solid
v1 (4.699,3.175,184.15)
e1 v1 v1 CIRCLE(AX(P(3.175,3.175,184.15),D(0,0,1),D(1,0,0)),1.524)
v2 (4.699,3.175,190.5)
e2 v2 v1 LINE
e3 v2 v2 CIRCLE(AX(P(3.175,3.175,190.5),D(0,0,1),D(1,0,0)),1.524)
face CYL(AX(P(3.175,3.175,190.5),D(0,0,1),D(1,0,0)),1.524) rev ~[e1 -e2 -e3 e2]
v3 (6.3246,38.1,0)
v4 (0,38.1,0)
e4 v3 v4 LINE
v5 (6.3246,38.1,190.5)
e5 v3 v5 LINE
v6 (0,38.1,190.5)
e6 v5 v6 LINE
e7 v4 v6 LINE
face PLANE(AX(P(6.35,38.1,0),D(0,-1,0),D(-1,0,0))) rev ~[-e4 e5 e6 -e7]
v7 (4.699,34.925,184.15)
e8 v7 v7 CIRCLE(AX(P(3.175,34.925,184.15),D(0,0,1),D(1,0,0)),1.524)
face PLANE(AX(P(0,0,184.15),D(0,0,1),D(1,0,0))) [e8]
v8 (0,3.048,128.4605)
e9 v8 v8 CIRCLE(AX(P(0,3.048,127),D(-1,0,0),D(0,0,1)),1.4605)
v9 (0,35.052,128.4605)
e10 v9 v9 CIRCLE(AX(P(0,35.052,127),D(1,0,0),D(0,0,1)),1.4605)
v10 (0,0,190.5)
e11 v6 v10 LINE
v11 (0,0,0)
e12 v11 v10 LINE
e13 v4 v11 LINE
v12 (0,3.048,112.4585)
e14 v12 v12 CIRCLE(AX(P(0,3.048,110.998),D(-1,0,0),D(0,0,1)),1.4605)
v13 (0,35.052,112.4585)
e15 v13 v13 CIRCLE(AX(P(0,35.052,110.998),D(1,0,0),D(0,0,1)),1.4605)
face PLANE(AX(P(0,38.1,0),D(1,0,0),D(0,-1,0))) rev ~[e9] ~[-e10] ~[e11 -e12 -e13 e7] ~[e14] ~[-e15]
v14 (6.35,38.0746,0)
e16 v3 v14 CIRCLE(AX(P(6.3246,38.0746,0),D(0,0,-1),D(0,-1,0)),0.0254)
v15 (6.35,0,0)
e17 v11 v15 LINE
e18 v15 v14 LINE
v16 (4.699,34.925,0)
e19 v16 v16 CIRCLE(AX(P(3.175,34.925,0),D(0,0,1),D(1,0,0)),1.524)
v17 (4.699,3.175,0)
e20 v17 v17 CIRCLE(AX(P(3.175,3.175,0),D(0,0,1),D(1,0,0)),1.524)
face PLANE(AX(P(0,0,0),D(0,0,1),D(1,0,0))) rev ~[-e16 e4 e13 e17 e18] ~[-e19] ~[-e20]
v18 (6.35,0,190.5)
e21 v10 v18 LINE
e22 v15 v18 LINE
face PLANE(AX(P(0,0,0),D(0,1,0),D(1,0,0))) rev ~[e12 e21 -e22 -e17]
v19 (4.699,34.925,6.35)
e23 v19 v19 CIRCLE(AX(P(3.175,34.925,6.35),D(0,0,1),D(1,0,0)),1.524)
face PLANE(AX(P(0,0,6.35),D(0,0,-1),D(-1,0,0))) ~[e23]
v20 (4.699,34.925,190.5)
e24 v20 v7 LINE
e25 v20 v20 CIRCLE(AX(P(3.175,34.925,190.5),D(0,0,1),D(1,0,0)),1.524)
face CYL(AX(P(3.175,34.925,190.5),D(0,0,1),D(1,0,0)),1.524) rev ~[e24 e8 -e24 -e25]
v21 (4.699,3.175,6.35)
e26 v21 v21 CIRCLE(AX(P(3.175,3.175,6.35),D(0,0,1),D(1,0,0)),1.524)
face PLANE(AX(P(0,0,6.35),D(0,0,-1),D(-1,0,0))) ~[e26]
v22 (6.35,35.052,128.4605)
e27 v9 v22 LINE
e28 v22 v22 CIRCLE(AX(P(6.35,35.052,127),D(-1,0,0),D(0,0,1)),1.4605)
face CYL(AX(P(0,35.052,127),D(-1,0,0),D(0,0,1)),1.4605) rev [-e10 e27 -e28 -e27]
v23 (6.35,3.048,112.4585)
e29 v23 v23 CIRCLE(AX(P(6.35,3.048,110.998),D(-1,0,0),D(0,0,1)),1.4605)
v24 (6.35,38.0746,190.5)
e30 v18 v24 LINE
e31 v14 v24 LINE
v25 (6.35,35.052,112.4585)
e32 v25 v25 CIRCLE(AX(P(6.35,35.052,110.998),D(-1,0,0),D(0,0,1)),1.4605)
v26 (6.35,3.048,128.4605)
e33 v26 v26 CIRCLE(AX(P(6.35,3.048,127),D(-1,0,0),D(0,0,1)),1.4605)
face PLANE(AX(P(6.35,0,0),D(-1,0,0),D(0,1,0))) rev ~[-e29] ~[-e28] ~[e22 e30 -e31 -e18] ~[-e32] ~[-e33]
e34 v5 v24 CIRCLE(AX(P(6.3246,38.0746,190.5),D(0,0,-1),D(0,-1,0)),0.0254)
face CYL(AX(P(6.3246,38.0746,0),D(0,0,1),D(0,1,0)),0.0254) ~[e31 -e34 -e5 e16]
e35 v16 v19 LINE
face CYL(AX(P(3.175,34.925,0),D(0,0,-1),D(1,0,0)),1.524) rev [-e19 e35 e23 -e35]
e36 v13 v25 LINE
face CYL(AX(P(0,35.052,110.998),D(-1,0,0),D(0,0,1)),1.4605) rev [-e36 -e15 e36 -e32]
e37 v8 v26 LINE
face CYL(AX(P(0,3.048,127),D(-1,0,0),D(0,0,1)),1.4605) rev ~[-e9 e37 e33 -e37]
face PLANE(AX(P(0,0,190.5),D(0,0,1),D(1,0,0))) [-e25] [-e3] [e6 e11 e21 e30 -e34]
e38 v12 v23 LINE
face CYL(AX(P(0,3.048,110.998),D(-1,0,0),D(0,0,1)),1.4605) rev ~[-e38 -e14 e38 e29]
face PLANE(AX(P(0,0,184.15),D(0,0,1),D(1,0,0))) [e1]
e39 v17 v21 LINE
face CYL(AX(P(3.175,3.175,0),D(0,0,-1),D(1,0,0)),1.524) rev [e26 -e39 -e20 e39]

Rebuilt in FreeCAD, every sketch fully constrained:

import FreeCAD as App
import Part
import Sketcher

V = App.Vector
Q = App.Units.Quantity


def edges_at(feature, points):
    """Names of the edges that pass closest to the given points."""
    edges = feature.Shape.Edges
    near = lambda p: min(range(len(edges)), key=lambda i: edges[i].distToShape(Part.Vertex(*p))[0])
    return sorted({f"Edge{near(p) + 1}" for p in points})


def add_polygon(sketch, points):
    """Adds a closed chain of lines whose ends are joined by coincident constraints."""
    first, n = sketch.GeometryCount, len(points)
    for a, b in zip(points, points[1:] + points[:1]):
        sketch.addGeometry(Part.LineSegment(App.Vector(*a, 0), App.Vector(*b, 0)), False)
    for i in range(n):
        sketch.addConstraint(Sketcher.Constraint("Coincident", first + i, 2, first + (i + 1) % n, 1))

doc = App.newDocument("Part")
body = doc.addObject("PartDesign::Body", "Body")

sketch1 = doc.addObject("Sketcher::SketchObject", "Sketch")
body.addObject(sketch1)
sketch1.AttachmentSupport = (doc.XY_Plane, [""])
sketch1.MapMode = "FlatFace"
add_polygon(sketch1, [(0, 38.1), (0, 0), (6.35, 0), (6.35, 38.1)])
sketch1.addConstraint([
    Sketcher.Constraint("Vertical", 0),
    Sketcher.Constraint("Horizontal", 1),
    Sketcher.Constraint("Vertical", 2),
    Sketcher.Constraint("Horizontal", 3),
    Sketcher.Constraint("Coincident", 0, 2, -1, 1),
    Sketcher.Constraint("DistanceY", 0, 2, 0, 1, Q("1.5 in")),
    Sketcher.Constraint("DistanceX", 1, 1, 1, 2, Q("0.25 in")),
])
pad1 = doc.addObject("PartDesign::Pad", "Pad")
body.addObject(pad1)
pad1.Profile = sketch1
pad1.Length = Q("7.5 in")

sketch2 = doc.addObject("Sketcher::SketchObject", "Sketch001")
body.addObject(sketch2)
sketch2.AttachmentSupport = (doc.XY_Plane, [""])
sketch2.MapMode = "FlatFace"
sketch2.AttachmentOffset = App.Placement(V(0, 0, 7.5 * 25.4), App.Rotation())
sketch2.addGeometry([
    Part.Circle(V(3.175, 3.175, 0), V(0, 0, 1), 1.524),
    Part.Circle(V(3.175, 34.925, 0), V(0, 0, 1), 1.524),
], False)
sketch2.addConstraint([
    Sketcher.Constraint("Equal", 0, 1),
    Sketcher.Constraint("Vertical", 0, 3, 1, 3),
    Sketcher.Constraint("Diameter", 0, Q("0.12 in")),
    Sketcher.Constraint("DistanceX", -1, 1, 0, 3, Q("0.125 in")),
    Sketcher.Constraint("DistanceY", -1, 1, 0, 3, Q("0.125 in")),
    Sketcher.Constraint("DistanceY", 0, 3, 1, 3, Q("1.25 in")),
])
pocket1 = doc.addObject("PartDesign::Pocket", "Pocket")
body.addObject(pocket1)
pocket1.Profile = sketch2
pocket1.Length = Q("0.25 in")
doc.recompute()

datumplane = doc.addObject("PartDesign::Plane", "DatumPlane")
body.addObject(datumplane)
datumplane.AttachmentSupport = (doc.XY_Plane, [""])
datumplane.MapMode = "FlatFace"
datumplane.AttachmentOffset = App.Placement(V(0, 0, 3.75 * 25.4), App.Rotation())
mirrored = doc.addObject("PartDesign::Mirrored", "Mirrored")
body.addObject(mirrored)
mirrored.Originals = [pocket1]
mirrored.MirrorPlane = (datumplane, [""])
body.Tip = mirrored

sketch3 = doc.addObject("Sketcher::SketchObject", "Sketch002")
body.addObject(sketch3)
sketch3.AttachmentSupport = (doc.YZ_Plane, [""])
sketch3.MapMode = "FlatFace"
sketch3.addGeometry([
    Part.Circle(V(3.048, 110.998, 0), V(0, 0, 1), 1.4605),
    Part.Circle(V(3.048, 127, 0), V(0, 0, 1), 1.4605),
], False)
sketch3.addConstraint([
    Sketcher.Constraint("Equal", 0, 1),
    Sketcher.Constraint("Vertical", 0, 3, 1, 3),
    Sketcher.Constraint("Diameter", 0, Q("0.115 in")),
    Sketcher.Constraint("DistanceX", -1, 1, 0, 3, Q("0.12 in")),
    Sketcher.Constraint("DistanceY", -1, 1, 0, 3, Q("4.37 in")),
    Sketcher.Constraint("DistanceY", 0, 3, 1, 3, Q("0.63 in")),
])
pocket2 = doc.addObject("PartDesign::Pocket", "Pocket001")
body.addObject(pocket2)
pocket2.Profile = sketch3
pocket2.Type = "ThroughAll"
pocket2.Reversed = True
doc.recompute()

datumplane2 = doc.addObject("PartDesign::Plane", "DatumPlane001")
body.addObject(datumplane2)
datumplane2.AttachmentSupport = (doc.XZ_Plane, [""])
datumplane2.MapMode = "FlatFace"
datumplane2.AttachmentOffset = App.Placement(V(0, 0, -0.75 * 25.4), App.Rotation())
mirrored2 = doc.addObject("PartDesign::Mirrored", "Mirrored001")
body.addObject(mirrored2)
mirrored2.Originals = [pocket2]
mirrored2.MirrorPlane = (datumplane2, [""])
body.Tip = mirrored2
doc.recompute()

fillet = doc.addObject("PartDesign::Fillet", "Fillet")
body.addObject(fillet)
fillet.Base = (mirrored2, edges_at(mirrored2, [(6.35, 38.1, 95.25)]))
fillet.Radius = Q("0.001 in")

doc.recompute()
